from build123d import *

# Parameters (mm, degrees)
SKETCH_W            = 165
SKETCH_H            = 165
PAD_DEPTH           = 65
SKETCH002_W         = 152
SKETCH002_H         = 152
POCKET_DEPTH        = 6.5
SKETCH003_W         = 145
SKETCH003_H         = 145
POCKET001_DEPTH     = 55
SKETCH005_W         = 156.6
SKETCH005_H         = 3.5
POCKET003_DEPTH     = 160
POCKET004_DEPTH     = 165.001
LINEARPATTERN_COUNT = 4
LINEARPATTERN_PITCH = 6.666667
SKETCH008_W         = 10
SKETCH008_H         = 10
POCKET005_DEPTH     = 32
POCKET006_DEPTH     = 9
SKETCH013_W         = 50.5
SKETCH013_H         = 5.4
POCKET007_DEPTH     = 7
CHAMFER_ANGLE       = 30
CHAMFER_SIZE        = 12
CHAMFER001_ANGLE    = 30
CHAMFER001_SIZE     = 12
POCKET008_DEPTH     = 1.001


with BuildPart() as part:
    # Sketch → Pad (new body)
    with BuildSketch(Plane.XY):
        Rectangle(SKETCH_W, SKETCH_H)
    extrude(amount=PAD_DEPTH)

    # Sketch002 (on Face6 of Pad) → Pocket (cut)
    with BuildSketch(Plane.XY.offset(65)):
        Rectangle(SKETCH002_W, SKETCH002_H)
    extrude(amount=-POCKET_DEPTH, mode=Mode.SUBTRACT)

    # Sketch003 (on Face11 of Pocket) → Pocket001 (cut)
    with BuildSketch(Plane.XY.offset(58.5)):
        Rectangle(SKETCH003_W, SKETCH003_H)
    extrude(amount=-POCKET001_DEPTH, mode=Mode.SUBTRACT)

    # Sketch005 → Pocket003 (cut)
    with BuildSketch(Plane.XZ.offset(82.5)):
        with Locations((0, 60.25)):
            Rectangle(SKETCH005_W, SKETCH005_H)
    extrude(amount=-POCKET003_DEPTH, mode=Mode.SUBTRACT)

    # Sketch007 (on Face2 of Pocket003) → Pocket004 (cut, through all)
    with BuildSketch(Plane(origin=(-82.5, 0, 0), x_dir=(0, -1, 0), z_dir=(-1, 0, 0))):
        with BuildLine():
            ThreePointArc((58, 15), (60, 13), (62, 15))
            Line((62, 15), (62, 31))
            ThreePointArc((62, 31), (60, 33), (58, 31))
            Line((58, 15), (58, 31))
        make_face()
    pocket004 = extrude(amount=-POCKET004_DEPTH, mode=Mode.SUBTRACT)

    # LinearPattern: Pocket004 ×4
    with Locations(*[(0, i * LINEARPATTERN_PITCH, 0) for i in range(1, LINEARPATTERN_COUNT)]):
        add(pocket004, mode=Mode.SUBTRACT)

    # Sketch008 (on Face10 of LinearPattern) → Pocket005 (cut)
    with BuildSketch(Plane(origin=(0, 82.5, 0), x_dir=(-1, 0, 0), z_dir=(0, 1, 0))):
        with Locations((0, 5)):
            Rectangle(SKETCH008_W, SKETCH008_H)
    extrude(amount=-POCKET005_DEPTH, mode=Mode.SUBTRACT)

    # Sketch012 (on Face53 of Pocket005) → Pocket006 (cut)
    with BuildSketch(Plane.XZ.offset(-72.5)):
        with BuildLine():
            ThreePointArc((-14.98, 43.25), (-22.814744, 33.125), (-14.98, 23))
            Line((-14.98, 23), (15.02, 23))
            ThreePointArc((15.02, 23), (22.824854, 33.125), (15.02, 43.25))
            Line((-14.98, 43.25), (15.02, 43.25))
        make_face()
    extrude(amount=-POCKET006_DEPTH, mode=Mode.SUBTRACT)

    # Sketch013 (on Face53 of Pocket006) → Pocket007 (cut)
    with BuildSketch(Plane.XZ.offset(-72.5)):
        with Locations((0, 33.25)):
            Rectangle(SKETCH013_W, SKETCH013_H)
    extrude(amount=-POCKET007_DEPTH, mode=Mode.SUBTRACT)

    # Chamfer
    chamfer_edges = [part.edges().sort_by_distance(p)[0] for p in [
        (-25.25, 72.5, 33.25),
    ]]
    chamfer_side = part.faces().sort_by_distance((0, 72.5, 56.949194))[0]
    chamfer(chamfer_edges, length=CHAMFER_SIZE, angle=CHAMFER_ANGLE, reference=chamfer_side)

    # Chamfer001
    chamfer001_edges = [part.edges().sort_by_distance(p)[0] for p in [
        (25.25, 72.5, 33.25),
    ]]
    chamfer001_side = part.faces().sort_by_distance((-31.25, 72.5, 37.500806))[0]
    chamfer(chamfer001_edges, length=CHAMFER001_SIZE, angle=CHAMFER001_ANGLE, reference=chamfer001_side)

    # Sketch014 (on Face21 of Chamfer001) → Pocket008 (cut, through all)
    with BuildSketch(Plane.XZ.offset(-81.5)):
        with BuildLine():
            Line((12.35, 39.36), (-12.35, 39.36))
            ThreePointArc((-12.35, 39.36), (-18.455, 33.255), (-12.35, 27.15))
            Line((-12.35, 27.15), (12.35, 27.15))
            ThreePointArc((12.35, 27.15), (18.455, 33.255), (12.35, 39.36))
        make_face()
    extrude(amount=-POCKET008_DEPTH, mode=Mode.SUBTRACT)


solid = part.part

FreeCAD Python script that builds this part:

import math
import FreeCAD as App
import Part
import Sketcher

V = App.Vector
Q = App.Units.Quantity


def edges_at(feature, points):
    """Names of the edges that pass closest to the given points."""
    edges = feature.Shape.Edges
    near = lambda p: min(range(len(edges)), key=lambda i: edges[i].distToShape(Part.Vertex(*p))[0])
    return sorted({f"Edge{near(p) + 1}" for p in points})


def add_polygon(sketch, points):
    """Adds a closed chain of lines whose ends are joined by coincident constraints."""
    first, n = sketch.GeometryCount, len(points)
    for a, b in zip(points, points[1:] + points[:1]):
        sketch.addGeometry(Part.LineSegment(App.Vector(*a, 0), App.Vector(*b, 0)), False)
    for i in range(n):
        sketch.addConstraint(Sketcher.Constraint("Coincident", first + i, 2, first + (i + 1) % n, 1))

doc = App.newDocument("Part")
body = doc.addObject("PartDesign::Body", "Body")

# Sketch on XY plane
sketch1 = doc.addObject("Sketcher::SketchObject", "Sketch")
body.addObject(sketch1)
sketch1.AttachmentSupport = (doc.XY_Plane, [""])
sketch1.MapMode = "FlatFace"
add_polygon(sketch1, [(-82, 82), (-82, -82), (82, -82), (82, 82)])  # lines 0-3
sketch1.addConstraint(Sketcher.Constraint("Vertical", 0))
sketch1.addConstraint(Sketcher.Constraint("Horizontal", 1))
sketch1.addConstraint(Sketcher.Constraint("Vertical", 2))
sketch1.addConstraint(Sketcher.Constraint("Horizontal", 3))
sketch1.addConstraint(Sketcher.Constraint("Symmetric", 0, 2, 2, 2, -1, 1))
sketch1.addConstraint(Sketcher.Constraint("Equal", 3, 0))
sketch1.addConstraint(Sketcher.Constraint("DistanceX", 1, 1, 1, 2, Q("165 mm")))
pad1 = doc.addObject("PartDesign::Pad", "Pad")
body.addObject(pad1)
pad1.Profile = sketch1
pad1.Length = 65

# Sketch on XY plane
sketch2 = doc.addObject("Sketcher::SketchObject", "Sketch001")
body.addObject(sketch2)
sketch2.AttachmentSupport = (doc.XY_Plane, [""])
sketch2.MapMode = "FlatFace"
sketch2.AttachmentOffset = App.Placement(V(0, 0, 65), App.Rotation())
add_polygon(sketch2, [(-76, 76), (-76, -76), (76, -76), (76, 76)])  # lines 0-3
sketch2.addConstraint(Sketcher.Constraint("Vertical", 0))
sketch2.addConstraint(Sketcher.Constraint("Horizontal", 1))
sketch2.addConstraint(Sketcher.Constraint("Vertical", 2))
sketch2.addConstraint(Sketcher.Constraint("Horizontal", 3))
sketch2.addConstraint(Sketcher.Constraint("Symmetric", 0, 2, 2, 2, -1, 1))
sketch2.addConstraint(Sketcher.Constraint("Equal", 3, 0))
sketch2.addConstraint(Sketcher.Constraint("DistanceX", 1, 1, 1, 2, Q("152 mm")))
pocket1 = doc.addObject("PartDesign::Pocket", "Pocket")
body.addObject(pocket1)
pocket1.Profile = sketch2
pocket1.Length = 6.5

# Sketch on XY plane
sketch3 = doc.addObject("Sketcher::SketchObject", "Sketch002")
body.addObject(sketch3)
sketch3.AttachmentSupport = (doc.XY_Plane, [""])
sketch3.MapMode = "FlatFace"
sketch3.AttachmentOffset = App.Placement(V(0, 0, 58.5), App.Rotation())
add_polygon(sketch3, [(-72, 72), (-72, -72), (72, -72), (72, 72)])  # lines 0-3
sketch3.addConstraint(Sketcher.Constraint("Vertical", 0))
sketch3.addConstraint(Sketcher.Constraint("Horizontal", 1))
sketch3.addConstraint(Sketcher.Constraint("Vertical", 2))
sketch3.addConstraint(Sketcher.Constraint("Horizontal", 3))
sketch3.addConstraint(Sketcher.Constraint("Symmetric", 0, 2, 2, 2, -1, 1))
sketch3.addConstraint(Sketcher.Constraint("Equal", 3, 0))
sketch3.addConstraint(Sketcher.Constraint("DistanceX", 1, 1, 1, 2, Q("145 mm")))
pocket2 = doc.addObject("PartDesign::Pocket", "Pocket001")
body.addObject(pocket2)
pocket2.Profile = sketch3
pocket2.Length = 55

# Sketch on XZ plane
sketch4 = doc.addObject("Sketcher::SketchObject", "Sketch003")
body.addObject(sketch4)
sketch4.AttachmentSupport = (doc.XZ_Plane, [""])
sketch4.MapMode = "FlatFace"
sketch4.AttachmentOffset = App.Placement(V(0, 0, 82.5), App.Rotation())
add_polygon(sketch4, [(-78.3, 62), (-78.3, 58.5), (78.3, 58.5), (78.3, 62)])  # lines 0-3
sketch4.addConstraint(Sketcher.Constraint("Vertical", 0))
sketch4.addConstraint(Sketcher.Constraint("Horizontal", 1))
sketch4.addConstraint(Sketcher.Constraint("Vertical", 2))
sketch4.addConstraint(Sketcher.Constraint("Horizontal", 3))
sketch4.addConstraint(Sketcher.Constraint("DistanceX", 1, 1, 1, 2, Q("156.6 mm")))
sketch4.addConstraint(Sketcher.Constraint("DistanceY", 0, 2, 0, 1, Q("3.5 mm")))
sketch4.addConstraint(Sketcher.Constraint("DistanceY", -1, 1, 2, 2, Q("62 mm")))
sketch4.addConstraint(Sketcher.Constraint("DistanceX", 0, 2, -1, 1, Q("78.3 mm")))
pocket3 = doc.addObject("PartDesign::Pocket", "Pocket002")
body.addObject(pocket3)
pocket3.Profile = sketch4
pocket3.Length = 160

# Sketch on YZ plane
sketch5 = doc.addObject("Sketcher::SketchObject", "Sketch004")
body.addObject(sketch5)
sketch5.AttachmentSupport = (doc.YZ_Plane, [""])
sketch5.MapMode = "FlatFace"
sketch5.AttachmentOffset = App.Placement(V(0, 0, -82.5), App.Rotation())
sketch5.addGeometry(Part.ArcOfCircle(Part.Circle(V(-60, 15, 0), V(0, 0, 1), 2), math.radians(180), math.radians(360)), False)
sketch5.addGeometry(Part.LineSegment(V(-62, 15, 0), V(-62, 31, 0)), False)
sketch5.addGeometry(Part.ArcOfCircle(Part.Circle(V(-60, 31, 0), V(0, 0, 1), 2), math.radians(0), math.radians(180)), False)
sketch5.addGeometry(Part.LineSegment(V(-58, 31, 0), V(-58, 15, 0)), False)
sketch5.addConstraint(Sketcher.Constraint("Tangent", 0, 1, 1, 1))
sketch5.addConstraint(Sketcher.Constraint("Tangent", 1, 2, 2, 2))
sketch5.addConstraint(Sketcher.Constraint("Tangent", 2, 1, 3, 1))
sketch5.addConstraint(Sketcher.Constraint("Tangent", 3, 2, 0, 2))
sketch5.addConstraint(Sketcher.Constraint("Vertical", 1))
sketch5.addConstraint(Sketcher.Constraint("Vertical", 3))
sketch5.addConstraint(Sketcher.Constraint("Radius", 0, Q("2 mm")))
sketch5.addConstraint(Sketcher.Constraint("DistanceY", 1, 1, 1, 2, Q("16 mm")))
sketch5.addConstraint(Sketcher.Constraint("DistanceX", 0, 3, -1, 1, Q("60 mm")))
sketch5.addConstraint(Sketcher.Constraint("DistanceY", -1, 1, 0, 3, Q("15 mm")))
pocket4 = doc.addObject("PartDesign::Pocket", "Pocket003")
body.addObject(pocket4)
pocket4.Profile = sketch5
pocket4.Type = "ThroughAll"
pocket4.Reversed = True
doc.recompute()

linearpattern = doc.addObject("PartDesign::LinearPattern", "LinearPattern")
body.addObject(linearpattern)
linearpattern.Originals = [pocket4]
linearpattern.Direction = (doc.Y_Axis, [""])
linearpattern.Mode = "offset"
linearpattern.Offset = 6.666667
linearpattern.Occurrences = 4
body.Tip = linearpattern

# Sketch on XZ plane
sketch6 = doc.addObject("Sketcher::SketchObject", "Sketch005")
body.addObject(sketch6)
sketch6.AttachmentSupport = (doc.XZ_Plane, [""])
sketch6.MapMode = "FlatFace"
sketch6.AttachmentOffset = App.Placement(V(0, 0, -82.5), App.Rotation())
add_polygon(sketch6, [(5, 10), (5, 0), (-5, 0), (-5, 10)])  # lines 0-3
sketch6.addConstraint(Sketcher.Constraint("Vertical", 0))
sketch6.addConstraint(Sketcher.Constraint("Horizontal", 1))
sketch6.addConstraint(Sketcher.Constraint("Vertical", 2))
sketch6.addConstraint(Sketcher.Constraint("Horizontal", 3))
sketch6.addConstraint(Sketcher.Constraint("Symmetric", 0, 2, 1, 2, -1, 1))
sketch6.addConstraint(Sketcher.Constraint("Equal", 3, 0))
sketch6.addConstraint(Sketcher.Constraint("DistanceX", 1, 2, 1, 1, Q("10 mm")))
pocket5 = doc.addObject("PartDesign::Pocket", "Pocket004")
body.addObject(pocket5)
pocket5.Profile = sketch6
pocket5.Length = 32
pocket5.Reversed = True

# Sketch on XZ plane
sketch7 = doc.addObject("Sketcher::SketchObject", "Sketch006")
body.addObject(sketch7)
sketch7.AttachmentSupport = (doc.XZ_Plane, [""])
sketch7.MapMode = "FlatFace"
sketch7.AttachmentOffset = App.Placement(V(0, 0, -72.5), App.Rotation())
sketch7.addGeometry(Part.ArcOfCircle(Part.Circle(V(-12, 33, 0), V(0, 0, 1), 10), math.radians(105), math.radians(255)), False)
sketch7.addGeometry(Part.LineSegment(V(-15, 23, 0), V(15, 23, 0)), False)
sketch7.addGeometry(Part.ArcOfCircle(Part.Circle(V(12, 33, 0), V(0, 0, 1), 10), math.radians(-75), math.radians(75)), False)
sketch7.addGeometry(Part.LineSegment(V(15, 43, 0), V(-15, 43, 0)), False)
sketch7.addConstraint(Sketcher.Constraint("Coincident", 0, 2, 1, 1))
sketch7.addConstraint(Sketcher.Constraint("Coincident", 1, 2, 2, 1))
sketch7.addConstraint(Sketcher.Constraint("Coincident", 2, 2, 3, 1))
sketch7.addConstraint(Sketcher.Constraint("Coincident", 3, 2, 0, 1))
sketch7.addConstraint(Sketcher.Constraint("Horizontal", 1))
sketch7.addConstraint(Sketcher.Constraint("Horizontal", 3))
sketch7.addConstraint(Sketcher.Constraint("Symmetric", 0, 3, 2, 3, -2))
sketch7.addConstraint(Sketcher.Constraint("Vertical", 1, 2, 2, 2))
sketch7.addConstraint(Sketcher.Constraint("DistanceX", 1, 1, 1, 2, Q("30 mm")))
sketch7.addConstraint(Sketcher.Constraint("DistanceY", -1, 1, 0, 2, Q("23 mm")))
sketch7.addConstraint(Sketcher.Constraint("DistanceX", 0, 2, -1, 1, Q("14.98 mm")))
sketch7.addConstraint(Sketcher.Constraint("DistanceY", -1, 1, 2, 2, Q("43.25 mm")))
sketch7.addConstraint(Sketcher.Constraint("DistanceX", 0, 3, 2, 3, Q("24.709999 mm")))
pocket6 = doc.addObject("PartDesign::Pocket", "Pocket005")
body.addObject(pocket6)
pocket6.Profile = sketch7
pocket6.Length = 9

# Sketch on XZ plane
sketch8 = doc.addObject("Sketcher::SketchObject", "Sketch007")
body.addObject(sketch8)
sketch8.AttachmentSupport = (doc.XZ_Plane, [""])
sketch8.MapMode = "FlatFace"
sketch8.AttachmentOffset = App.Placement(V(0, 0, -72.5), App.Rotation())
add_polygon(sketch8, [(-25, 36), (-25, 31), (25, 31), (25, 36)])  # lines 0-3
sketch8.addConstraint(Sketcher.Constraint("Vertical", 0))
sketch8.addConstraint(Sketcher.Constraint("Horizontal", 1))
sketch8.addConstraint(Sketcher.Constraint("Vertical", 2))
sketch8.addConstraint(Sketcher.Constraint("Horizontal", 3))
sketch8.addConstraint(Sketcher.Constraint("DistanceX", 1, 1, 1, 2, Q("50.5 mm")))
sketch8.addConstraint(Sketcher.Constraint("DistanceY", 0, 2, 0, 1, Q("5.4 mm")))
sketch8.addConstraint(Sketcher.Constraint("DistanceX", 0, 2, -1, 1, Q("25.25 mm")))
sketch8.addConstraint(Sketcher.Constraint("DistanceY", -1, 1, 0, 2, Q("30.55 mm")))
pocket7 = doc.addObject("PartDesign::Pocket", "Pocket006")
body.addObject(pocket7)
pocket7.Profile = sketch8
pocket7.Length = 7
doc.recompute()

chamfer = doc.addObject("PartDesign::Chamfer", "Chamfer")
body.addObject(chamfer)
chamfer.Base = (pocket7, edges_at(pocket7, [(-25.25, 72.5, 33.25)]))
chamfer.ChamferType = "Distance and Angle"
chamfer.Size = 12
chamfer.Angle = 30
doc.recompute()

chamfer2 = doc.addObject("PartDesign::Chamfer", "Chamfer001")
body.addObject(chamfer2)
chamfer2.Base = (chamfer, edges_at(chamfer, [(25.25, 72.5, 33.25)]))
chamfer2.ChamferType = "Distance and Angle"
chamfer2.Size = 12
chamfer2.Angle = 30

# Sketch on XZ plane
sketch9 = doc.addObject("Sketcher::SketchObject", "Sketch008")
body.addObject(sketch9)
sketch9.AttachmentSupport = (doc.XZ_Plane, [""])
sketch9.MapMode = "FlatFace"
sketch9.AttachmentOffset = App.Placement(V(0, 0, -81.5), App.Rotation())
sketch9.addGeometry(Part.LineSegment(V(12, 39, 0), V(-12, 39, 0)), False)
sketch9.addGeometry(Part.ArcOfCircle(Part.Circle(V(-12, 33, 0), V(0, 0, 1), 6), math.radians(90), math.radians(270)), False)
sketch9.addGeometry(Part.LineSegment(V(-12, 27, 0), V(12, 27, 0)), False)
sketch9.addGeometry(Part.ArcOfCircle(Part.Circle(V(12, 33, 0), V(0, 0, 1), 6), math.radians(-90), math.radians(90)), False)
sketch9.addConstraint(Sketcher.Constraint("Tangent", 0, 2, 1, 1))
sketch9.addConstraint(Sketcher.Constraint("Tangent", 1, 2, 2, 1))
sketch9.addConstraint(Sketcher.Constraint("Tangent", 2, 2, 3, 1))
sketch9.addConstraint(Sketcher.Constraint("Tangent", 3, 2, 0, 1))
sketch9.addConstraint(Sketcher.Constraint("Horizontal", 0))
sketch9.addConstraint(Sketcher.Constraint("Horizontal", 2))
sketch9.addConstraint(Sketcher.Constraint("DistanceX", 0, 2, 0, 1, Q("24.7 mm")))
sketch9.addConstraint(Sketcher.Constraint("Radius", 1, Q("6.105 mm")))
sketch9.addConstraint(Sketcher.Constraint("DistanceX", 1, 3, -1, 1, Q("12.35 mm")))
sketch9.addConstraint(Sketcher.Constraint("DistanceY", -1, 1, 0, 2, Q("39.36 mm")))
pocket8 = doc.addObject("PartDesign::Pocket", "Pocket007")
body.addObject(pocket8)
pocket8.Profile = sketch9
pocket8.Type = "ThroughAll"

doc.recompute()
